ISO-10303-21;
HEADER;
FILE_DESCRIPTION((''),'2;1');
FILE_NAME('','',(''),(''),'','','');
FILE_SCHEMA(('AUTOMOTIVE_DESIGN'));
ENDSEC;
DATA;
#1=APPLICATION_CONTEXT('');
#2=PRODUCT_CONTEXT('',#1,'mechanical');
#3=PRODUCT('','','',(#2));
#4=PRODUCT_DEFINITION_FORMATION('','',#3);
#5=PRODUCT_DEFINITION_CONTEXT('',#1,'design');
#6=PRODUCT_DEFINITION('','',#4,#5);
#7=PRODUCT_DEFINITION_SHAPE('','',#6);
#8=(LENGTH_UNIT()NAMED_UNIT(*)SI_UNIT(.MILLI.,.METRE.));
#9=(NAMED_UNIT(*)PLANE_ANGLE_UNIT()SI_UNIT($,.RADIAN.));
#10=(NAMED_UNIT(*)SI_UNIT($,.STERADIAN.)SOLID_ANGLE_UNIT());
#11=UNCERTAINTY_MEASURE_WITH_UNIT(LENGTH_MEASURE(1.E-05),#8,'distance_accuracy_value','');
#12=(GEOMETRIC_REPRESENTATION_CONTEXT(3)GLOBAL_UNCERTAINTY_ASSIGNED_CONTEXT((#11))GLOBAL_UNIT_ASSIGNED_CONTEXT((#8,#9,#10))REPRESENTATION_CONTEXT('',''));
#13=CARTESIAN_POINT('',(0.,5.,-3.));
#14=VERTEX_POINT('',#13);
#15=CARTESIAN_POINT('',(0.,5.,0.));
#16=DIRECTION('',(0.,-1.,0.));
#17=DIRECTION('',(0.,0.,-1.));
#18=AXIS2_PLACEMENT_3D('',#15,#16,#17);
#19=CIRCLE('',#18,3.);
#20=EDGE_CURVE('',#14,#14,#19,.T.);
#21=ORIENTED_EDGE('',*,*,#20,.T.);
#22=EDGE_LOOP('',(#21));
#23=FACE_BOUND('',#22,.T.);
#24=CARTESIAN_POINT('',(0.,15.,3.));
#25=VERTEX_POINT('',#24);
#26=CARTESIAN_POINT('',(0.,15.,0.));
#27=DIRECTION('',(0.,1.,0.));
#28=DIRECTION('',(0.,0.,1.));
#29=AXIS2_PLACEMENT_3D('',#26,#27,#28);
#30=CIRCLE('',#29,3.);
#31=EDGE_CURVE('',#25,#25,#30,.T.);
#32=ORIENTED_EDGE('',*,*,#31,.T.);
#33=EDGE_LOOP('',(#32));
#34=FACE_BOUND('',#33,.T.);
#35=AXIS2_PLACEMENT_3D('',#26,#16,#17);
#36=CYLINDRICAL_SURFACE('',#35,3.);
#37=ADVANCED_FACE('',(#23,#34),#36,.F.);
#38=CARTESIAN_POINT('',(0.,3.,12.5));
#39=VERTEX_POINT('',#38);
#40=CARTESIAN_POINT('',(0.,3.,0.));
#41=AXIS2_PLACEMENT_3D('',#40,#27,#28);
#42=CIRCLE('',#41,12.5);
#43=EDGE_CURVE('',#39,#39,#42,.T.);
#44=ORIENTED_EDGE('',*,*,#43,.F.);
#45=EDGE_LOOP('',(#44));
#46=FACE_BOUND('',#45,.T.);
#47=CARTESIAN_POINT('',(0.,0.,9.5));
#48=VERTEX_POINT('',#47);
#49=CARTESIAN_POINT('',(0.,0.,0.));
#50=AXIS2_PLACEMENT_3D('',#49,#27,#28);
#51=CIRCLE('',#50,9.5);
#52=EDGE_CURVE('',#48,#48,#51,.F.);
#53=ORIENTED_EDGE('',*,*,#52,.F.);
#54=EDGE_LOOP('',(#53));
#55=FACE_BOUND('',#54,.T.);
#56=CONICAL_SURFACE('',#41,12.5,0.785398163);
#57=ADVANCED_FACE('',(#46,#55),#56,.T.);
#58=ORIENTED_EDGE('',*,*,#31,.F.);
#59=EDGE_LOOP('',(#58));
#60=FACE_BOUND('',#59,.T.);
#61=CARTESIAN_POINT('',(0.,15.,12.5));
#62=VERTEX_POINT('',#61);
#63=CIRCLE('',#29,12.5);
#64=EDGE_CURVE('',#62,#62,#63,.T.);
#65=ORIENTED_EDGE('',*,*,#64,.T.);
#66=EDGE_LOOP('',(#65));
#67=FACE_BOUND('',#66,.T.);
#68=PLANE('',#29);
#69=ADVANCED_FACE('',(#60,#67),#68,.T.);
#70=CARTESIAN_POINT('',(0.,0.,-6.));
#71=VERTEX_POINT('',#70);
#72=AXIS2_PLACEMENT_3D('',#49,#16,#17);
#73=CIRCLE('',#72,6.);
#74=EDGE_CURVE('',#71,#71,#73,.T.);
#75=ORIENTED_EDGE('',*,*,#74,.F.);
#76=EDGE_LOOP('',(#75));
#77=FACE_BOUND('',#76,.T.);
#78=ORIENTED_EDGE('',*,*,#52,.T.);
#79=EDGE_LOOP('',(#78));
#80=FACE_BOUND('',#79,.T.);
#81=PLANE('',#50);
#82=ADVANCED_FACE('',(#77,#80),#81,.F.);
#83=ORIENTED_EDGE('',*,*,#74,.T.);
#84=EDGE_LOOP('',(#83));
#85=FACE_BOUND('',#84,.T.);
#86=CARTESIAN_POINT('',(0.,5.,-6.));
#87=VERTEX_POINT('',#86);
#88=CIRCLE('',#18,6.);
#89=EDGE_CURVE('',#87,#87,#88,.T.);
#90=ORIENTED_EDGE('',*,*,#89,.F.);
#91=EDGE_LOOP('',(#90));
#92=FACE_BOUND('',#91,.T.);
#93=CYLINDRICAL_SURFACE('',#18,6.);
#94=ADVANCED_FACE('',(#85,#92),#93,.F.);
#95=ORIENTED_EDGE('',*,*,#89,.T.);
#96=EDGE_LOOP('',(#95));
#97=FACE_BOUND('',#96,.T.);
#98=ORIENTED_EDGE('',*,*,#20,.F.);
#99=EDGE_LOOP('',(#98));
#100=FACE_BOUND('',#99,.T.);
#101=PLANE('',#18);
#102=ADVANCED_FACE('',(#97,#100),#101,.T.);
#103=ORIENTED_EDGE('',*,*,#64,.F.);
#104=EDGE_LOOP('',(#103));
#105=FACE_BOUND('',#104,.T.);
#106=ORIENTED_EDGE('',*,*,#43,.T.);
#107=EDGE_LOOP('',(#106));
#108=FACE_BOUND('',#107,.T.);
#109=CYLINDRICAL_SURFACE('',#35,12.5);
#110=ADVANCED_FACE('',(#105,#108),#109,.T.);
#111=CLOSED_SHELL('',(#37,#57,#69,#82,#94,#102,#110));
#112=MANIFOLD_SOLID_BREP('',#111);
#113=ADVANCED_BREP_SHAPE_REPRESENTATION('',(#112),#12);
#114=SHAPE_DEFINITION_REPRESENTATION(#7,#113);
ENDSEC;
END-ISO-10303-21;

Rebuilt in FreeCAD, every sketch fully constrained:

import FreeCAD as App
import Part
import Sketcher

V = App.Vector


def edges_at(feature, points):
    """Names of the edges that pass closest to the given points."""
    edges = feature.Shape.Edges
    near = lambda p: min(range(len(edges)), key=lambda i: edges[i].distToShape(Part.Vertex(*p))[0])
    return sorted({f"Edge{near(p) + 1}" for p in points})

doc = App.newDocument("Part")
body = doc.addObject("PartDesign::Body", "Body")

# Sketch on XZ plane
sketch1 = body.newObject("Sketcher::SketchObject", "Sketch")
sketch1.AttachmentSupport = (doc.getObject("XZ_Plane"), [""])
sketch1.MapMode = "FlatFace"
sketch1.addGeometry(Part.Circle(V(0, 0, 0), V(0, 0, 1), 12.5), False)
sketch1.addGeometry(Part.Circle(V(0, 0, 0), V(0, 0, 1), 3), False)
sketch1.addConstraint(Sketcher.Constraint("Coincident", 0, 3, -1, 1))
sketch1.addConstraint(Sketcher.Constraint("Coincident", 1, 3, -1, 1))
sketch1.addConstraint(Sketcher.Constraint("Diameter", 0, 25.0))
sketch1.addConstraint(Sketcher.Constraint("Diameter", 1, 6.0))
pad1 = body.newObject("PartDesign::Pad", "Pad")
pad1.Profile = sketch1
pad1.Length = 15
pad1.Reversed = True
doc.recompute()

chamfer = body.newObject("PartDesign::Chamfer", "Chamfer")
chamfer.Base = (pad1, edges_at(pad1, [(0, 0, -12.5)]))
chamfer.Size = 3

# Sketch on XZ plane
sketch2 = body.newObject("Sketcher::SketchObject", "Sketch001")
sketch2.AttachmentSupport = (doc.getObject("XZ_Plane"), [""])
sketch2.MapMode = "FlatFace"
sketch2.addGeometry(Part.Circle(V(0, 0, 0), V(0, 0, 1), 6), False)
sketch2.addConstraint(Sketcher.Constraint("Coincident", 0, 3, -1, 1))
sketch2.addConstraint(Sketcher.Constraint("Diameter", 0, 12.0))
pocket1 = body.newObject("PartDesign::Pocket", "Pocket")
pocket1.Profile = sketch2
pocket1.Length = 5

doc.recompute()
